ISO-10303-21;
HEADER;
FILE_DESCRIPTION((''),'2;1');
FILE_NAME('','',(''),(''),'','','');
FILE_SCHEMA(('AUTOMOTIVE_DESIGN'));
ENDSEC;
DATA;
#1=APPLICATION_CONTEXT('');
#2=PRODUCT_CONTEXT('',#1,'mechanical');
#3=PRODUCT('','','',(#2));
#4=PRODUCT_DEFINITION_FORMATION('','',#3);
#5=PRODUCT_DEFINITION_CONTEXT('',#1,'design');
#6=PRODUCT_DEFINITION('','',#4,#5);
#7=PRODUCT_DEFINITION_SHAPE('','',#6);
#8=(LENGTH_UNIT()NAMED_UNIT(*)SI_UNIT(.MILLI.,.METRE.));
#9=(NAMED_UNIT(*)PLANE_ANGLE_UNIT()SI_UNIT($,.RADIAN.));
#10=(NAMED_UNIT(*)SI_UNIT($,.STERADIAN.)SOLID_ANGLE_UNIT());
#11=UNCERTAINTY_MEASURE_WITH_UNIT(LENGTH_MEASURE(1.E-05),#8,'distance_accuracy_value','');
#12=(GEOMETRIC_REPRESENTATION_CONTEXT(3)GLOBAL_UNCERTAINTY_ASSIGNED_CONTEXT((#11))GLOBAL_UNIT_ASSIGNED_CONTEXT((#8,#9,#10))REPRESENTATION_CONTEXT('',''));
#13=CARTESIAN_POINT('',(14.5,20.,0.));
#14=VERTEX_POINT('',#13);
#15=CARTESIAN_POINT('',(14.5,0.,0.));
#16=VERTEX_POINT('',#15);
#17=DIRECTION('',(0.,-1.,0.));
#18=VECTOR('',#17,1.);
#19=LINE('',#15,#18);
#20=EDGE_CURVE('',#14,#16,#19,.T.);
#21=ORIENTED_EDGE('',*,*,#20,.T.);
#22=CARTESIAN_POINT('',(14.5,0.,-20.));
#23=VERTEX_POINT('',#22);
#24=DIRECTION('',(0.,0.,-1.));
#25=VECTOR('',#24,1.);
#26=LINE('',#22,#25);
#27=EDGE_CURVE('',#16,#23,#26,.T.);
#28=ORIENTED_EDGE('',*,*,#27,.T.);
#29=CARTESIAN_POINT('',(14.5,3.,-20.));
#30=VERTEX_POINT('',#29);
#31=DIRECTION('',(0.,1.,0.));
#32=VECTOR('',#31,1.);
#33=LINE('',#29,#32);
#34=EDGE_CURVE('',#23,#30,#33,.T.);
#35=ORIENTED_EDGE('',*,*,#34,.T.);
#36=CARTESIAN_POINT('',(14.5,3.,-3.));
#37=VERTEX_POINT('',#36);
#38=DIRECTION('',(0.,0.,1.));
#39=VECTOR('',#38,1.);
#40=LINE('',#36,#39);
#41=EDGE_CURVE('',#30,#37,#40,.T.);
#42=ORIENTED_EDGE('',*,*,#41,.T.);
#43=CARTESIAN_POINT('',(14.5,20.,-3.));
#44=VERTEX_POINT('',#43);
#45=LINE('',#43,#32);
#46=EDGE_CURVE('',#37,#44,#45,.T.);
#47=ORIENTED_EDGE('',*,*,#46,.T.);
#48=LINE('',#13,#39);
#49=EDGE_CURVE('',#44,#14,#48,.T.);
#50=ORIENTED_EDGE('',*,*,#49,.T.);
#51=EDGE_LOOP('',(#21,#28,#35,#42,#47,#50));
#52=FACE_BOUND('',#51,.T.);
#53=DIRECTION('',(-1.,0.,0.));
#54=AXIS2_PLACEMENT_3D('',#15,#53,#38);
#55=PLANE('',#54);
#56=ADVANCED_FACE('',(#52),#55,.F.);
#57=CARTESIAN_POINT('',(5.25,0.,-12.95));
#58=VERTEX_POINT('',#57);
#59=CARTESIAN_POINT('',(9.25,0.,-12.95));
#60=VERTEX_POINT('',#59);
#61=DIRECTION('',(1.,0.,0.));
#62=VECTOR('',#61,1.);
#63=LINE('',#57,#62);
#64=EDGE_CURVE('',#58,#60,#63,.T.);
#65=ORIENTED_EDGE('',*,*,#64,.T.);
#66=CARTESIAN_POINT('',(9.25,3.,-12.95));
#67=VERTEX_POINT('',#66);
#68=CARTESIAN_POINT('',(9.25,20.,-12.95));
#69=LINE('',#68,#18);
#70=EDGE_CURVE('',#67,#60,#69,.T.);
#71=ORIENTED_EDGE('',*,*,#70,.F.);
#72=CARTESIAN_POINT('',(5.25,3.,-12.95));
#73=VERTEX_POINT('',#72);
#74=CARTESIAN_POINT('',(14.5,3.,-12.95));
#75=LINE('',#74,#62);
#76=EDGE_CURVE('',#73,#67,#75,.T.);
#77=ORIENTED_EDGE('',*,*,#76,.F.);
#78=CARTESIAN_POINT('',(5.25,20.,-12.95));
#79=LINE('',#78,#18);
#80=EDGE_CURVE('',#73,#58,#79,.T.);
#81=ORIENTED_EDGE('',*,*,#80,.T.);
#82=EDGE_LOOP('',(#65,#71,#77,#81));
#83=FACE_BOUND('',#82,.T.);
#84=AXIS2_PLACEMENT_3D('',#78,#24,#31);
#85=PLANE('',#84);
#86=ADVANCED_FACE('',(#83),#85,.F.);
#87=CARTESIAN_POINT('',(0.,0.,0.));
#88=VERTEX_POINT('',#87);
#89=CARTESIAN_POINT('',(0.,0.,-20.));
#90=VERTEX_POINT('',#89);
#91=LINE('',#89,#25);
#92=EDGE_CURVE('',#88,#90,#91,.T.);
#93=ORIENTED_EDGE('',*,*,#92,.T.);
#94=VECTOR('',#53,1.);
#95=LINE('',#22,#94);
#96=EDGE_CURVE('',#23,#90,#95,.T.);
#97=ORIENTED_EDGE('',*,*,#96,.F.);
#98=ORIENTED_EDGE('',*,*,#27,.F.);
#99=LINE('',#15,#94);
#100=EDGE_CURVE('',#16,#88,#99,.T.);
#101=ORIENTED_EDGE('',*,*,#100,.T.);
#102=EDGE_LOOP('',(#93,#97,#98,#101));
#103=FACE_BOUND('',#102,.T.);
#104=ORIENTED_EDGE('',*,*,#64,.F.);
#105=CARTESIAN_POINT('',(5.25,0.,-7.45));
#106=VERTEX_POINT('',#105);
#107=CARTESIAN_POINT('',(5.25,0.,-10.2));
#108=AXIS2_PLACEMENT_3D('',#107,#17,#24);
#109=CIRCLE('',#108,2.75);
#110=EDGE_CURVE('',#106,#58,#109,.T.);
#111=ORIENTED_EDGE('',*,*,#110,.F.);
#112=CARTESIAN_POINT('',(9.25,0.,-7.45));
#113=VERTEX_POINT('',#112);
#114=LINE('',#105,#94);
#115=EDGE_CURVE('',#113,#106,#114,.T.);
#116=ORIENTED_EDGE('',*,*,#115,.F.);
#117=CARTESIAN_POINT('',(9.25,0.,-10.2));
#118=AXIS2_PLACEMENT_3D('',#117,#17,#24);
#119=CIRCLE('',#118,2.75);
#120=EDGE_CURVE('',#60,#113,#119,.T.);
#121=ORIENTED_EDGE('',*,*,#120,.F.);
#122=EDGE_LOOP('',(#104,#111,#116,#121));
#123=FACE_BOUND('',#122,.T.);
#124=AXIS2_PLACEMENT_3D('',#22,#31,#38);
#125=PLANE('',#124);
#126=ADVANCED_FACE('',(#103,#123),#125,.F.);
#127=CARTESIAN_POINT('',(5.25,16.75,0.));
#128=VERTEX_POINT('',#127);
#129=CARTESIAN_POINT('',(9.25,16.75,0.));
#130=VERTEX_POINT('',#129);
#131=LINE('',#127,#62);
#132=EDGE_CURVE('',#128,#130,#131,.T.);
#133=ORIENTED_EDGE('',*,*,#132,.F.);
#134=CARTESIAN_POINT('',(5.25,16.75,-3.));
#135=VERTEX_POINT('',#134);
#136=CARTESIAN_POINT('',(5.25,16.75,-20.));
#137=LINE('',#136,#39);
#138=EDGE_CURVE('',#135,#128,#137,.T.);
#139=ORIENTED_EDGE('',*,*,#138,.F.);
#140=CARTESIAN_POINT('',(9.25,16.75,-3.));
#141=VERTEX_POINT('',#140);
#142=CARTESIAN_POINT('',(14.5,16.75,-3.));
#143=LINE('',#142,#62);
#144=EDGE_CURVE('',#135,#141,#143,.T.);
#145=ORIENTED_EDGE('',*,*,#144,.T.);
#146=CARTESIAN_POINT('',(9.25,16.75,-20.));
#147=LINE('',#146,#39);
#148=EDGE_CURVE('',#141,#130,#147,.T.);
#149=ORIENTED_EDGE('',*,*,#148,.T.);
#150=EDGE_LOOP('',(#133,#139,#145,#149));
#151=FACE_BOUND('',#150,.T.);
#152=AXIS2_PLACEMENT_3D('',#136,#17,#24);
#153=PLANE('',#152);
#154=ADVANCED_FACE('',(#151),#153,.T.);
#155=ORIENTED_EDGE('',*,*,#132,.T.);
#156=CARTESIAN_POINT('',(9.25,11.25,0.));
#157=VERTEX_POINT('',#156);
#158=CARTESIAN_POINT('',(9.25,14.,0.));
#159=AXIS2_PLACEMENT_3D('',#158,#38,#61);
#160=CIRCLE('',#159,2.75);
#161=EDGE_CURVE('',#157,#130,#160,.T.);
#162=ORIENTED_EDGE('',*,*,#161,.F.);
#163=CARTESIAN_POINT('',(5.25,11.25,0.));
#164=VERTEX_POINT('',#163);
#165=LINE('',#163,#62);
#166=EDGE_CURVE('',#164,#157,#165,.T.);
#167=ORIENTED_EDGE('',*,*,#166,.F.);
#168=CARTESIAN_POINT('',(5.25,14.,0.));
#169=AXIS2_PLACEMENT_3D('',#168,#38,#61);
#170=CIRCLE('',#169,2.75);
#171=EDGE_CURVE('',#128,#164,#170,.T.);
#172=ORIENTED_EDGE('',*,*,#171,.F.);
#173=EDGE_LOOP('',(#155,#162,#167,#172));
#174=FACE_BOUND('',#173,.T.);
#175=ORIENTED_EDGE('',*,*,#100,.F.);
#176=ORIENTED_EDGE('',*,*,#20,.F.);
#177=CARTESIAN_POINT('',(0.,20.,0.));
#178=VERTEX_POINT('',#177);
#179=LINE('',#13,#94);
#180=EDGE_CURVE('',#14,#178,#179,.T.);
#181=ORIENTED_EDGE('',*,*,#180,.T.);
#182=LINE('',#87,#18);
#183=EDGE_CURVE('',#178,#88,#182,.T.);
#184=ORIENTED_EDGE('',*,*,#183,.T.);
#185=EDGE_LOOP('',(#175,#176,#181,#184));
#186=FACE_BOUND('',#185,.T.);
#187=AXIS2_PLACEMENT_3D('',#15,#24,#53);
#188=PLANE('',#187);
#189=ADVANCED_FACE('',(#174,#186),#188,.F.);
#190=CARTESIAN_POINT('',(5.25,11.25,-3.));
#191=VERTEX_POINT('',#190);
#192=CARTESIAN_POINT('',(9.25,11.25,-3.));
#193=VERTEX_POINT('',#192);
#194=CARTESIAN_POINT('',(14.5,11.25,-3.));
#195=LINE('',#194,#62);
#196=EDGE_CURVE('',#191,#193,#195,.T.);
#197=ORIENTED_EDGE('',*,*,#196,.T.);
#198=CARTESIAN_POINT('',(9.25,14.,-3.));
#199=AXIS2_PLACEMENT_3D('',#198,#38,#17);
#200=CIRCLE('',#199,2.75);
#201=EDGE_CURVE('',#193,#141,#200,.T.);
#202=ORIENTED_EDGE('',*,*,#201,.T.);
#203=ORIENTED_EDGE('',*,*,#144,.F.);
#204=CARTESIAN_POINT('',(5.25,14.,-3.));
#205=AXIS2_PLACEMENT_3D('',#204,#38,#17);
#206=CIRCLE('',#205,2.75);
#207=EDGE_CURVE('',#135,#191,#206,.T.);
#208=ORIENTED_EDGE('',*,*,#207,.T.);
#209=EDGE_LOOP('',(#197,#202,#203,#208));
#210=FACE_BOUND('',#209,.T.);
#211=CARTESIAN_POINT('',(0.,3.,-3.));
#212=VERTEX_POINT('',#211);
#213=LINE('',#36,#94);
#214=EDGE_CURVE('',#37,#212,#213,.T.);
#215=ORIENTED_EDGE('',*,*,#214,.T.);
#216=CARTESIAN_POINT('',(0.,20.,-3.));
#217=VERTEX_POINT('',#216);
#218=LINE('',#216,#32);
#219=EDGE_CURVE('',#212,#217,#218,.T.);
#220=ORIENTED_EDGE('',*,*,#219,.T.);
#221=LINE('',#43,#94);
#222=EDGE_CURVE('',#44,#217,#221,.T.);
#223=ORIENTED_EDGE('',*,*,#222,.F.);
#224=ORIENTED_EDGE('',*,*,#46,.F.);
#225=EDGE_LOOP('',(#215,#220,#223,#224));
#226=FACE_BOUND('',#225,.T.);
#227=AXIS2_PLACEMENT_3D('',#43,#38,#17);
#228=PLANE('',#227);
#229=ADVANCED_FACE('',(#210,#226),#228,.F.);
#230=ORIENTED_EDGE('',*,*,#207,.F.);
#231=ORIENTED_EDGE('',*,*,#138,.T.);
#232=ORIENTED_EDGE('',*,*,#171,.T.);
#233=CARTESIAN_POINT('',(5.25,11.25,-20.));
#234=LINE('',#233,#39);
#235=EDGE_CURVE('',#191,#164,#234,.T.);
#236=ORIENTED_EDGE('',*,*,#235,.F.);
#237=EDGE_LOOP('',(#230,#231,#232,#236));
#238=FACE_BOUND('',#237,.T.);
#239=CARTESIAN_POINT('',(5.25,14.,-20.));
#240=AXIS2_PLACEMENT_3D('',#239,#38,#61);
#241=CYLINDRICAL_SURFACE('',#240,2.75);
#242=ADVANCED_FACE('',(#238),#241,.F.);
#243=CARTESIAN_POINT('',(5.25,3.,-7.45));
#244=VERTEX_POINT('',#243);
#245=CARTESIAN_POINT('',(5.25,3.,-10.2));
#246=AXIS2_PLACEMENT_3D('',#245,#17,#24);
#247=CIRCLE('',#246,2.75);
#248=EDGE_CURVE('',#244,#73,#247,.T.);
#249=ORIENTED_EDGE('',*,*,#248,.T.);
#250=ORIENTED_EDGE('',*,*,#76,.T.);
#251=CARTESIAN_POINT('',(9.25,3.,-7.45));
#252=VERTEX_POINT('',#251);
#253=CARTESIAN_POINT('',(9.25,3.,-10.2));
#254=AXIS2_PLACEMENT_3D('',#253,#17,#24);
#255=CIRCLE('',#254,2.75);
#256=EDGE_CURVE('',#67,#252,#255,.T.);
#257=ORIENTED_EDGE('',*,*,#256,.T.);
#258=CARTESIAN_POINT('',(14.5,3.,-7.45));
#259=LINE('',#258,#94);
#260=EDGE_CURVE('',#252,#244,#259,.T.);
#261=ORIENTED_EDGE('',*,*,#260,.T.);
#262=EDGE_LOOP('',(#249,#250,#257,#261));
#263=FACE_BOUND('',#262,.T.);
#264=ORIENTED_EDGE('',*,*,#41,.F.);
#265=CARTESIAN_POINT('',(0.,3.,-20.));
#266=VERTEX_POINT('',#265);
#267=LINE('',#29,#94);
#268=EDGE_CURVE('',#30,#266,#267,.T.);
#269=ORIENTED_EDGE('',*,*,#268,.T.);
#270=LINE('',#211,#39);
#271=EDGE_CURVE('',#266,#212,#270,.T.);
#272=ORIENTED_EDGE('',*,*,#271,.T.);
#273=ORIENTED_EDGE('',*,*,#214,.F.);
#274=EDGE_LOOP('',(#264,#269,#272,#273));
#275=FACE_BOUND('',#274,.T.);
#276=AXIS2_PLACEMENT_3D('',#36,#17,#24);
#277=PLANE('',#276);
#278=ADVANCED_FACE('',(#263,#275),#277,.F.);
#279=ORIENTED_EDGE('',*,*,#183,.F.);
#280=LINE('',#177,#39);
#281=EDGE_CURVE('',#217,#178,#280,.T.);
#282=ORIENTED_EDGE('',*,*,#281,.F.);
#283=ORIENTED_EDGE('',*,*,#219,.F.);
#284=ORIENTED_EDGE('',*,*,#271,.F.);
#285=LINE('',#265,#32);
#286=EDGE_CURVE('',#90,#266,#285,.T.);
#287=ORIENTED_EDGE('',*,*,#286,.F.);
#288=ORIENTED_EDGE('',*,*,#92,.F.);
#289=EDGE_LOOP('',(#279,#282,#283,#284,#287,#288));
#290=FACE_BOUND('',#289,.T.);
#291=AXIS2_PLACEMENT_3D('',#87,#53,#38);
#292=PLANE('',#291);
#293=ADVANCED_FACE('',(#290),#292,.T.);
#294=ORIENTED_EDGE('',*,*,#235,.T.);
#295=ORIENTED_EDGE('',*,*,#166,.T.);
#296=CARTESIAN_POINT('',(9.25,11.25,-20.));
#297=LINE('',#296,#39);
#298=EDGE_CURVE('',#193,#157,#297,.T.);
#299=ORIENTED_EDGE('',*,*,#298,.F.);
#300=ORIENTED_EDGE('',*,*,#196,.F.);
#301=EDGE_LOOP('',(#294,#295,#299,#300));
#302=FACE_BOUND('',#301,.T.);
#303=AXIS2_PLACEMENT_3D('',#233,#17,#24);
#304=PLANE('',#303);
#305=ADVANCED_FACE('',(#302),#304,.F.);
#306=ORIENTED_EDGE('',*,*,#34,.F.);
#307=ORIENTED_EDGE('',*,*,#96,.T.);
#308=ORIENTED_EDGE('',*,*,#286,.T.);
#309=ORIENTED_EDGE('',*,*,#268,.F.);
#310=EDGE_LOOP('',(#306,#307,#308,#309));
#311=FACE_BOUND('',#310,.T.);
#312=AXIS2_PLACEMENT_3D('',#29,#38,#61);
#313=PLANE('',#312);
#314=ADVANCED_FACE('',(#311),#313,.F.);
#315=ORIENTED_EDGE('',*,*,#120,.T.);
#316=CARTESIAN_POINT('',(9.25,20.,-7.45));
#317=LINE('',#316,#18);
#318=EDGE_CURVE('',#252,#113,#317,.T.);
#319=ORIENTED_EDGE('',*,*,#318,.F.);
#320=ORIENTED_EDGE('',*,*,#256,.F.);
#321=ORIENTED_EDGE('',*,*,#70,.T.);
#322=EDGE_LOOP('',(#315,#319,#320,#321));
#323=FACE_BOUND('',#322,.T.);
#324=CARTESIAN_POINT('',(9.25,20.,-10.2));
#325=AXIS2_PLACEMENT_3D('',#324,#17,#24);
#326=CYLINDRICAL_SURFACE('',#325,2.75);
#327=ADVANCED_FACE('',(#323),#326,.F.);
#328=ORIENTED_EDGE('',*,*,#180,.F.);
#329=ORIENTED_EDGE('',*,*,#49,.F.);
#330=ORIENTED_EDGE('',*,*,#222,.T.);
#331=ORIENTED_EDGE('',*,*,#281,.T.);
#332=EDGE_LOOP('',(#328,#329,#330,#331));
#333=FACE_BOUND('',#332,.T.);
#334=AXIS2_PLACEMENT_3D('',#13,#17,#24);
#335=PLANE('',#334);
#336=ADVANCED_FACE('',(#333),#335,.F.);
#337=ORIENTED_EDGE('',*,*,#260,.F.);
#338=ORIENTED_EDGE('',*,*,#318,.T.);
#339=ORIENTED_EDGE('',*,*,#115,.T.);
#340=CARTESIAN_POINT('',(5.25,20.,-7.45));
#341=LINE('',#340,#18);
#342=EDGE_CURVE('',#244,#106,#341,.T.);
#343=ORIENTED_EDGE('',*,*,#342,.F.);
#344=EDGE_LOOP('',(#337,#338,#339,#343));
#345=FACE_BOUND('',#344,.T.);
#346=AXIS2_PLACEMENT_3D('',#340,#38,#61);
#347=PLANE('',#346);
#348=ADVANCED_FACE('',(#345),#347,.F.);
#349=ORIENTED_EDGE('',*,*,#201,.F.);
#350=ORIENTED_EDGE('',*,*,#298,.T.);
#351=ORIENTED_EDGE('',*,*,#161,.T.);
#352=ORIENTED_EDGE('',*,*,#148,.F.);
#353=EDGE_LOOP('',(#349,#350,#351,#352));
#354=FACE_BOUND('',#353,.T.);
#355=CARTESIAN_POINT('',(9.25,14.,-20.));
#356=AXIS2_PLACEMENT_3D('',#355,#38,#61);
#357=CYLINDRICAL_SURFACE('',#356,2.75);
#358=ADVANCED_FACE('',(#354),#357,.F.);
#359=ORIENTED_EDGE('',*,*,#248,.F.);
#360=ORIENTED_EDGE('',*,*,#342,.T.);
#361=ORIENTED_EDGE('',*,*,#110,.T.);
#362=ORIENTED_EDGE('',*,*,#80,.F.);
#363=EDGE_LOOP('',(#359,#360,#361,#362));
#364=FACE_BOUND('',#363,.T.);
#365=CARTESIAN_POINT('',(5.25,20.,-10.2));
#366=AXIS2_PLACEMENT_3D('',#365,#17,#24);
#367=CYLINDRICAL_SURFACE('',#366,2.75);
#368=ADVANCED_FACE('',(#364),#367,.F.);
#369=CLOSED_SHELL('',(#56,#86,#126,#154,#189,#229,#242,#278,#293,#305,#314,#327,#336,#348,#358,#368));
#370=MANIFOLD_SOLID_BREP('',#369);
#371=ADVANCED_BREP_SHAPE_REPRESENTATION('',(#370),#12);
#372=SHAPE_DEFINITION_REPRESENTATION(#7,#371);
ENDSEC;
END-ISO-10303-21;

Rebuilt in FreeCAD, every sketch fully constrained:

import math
import FreeCAD as App
import Part
import Sketcher

V = App.Vector
Q = App.Units.Quantity


def add_polygon(sketch, points):
    """Adds a closed chain of lines whose ends are joined by coincident constraints."""
    first, n = sketch.GeometryCount, len(points)
    for a, b in zip(points, points[1:] + points[:1]):
        sketch.addGeometry(Part.LineSegment(App.Vector(*a, 0), App.Vector(*b, 0)), False)
    for i in range(n):
        sketch.addConstraint(Sketcher.Constraint("Coincident", first + i, 2, first + (i + 1) % n, 1))

doc = App.newDocument("Part")
body = doc.addObject("PartDesign::Body", "Body")

sketch1 = body.newObject("Sketcher::SketchObject", "Sketch")
sketch1.AttachmentSupport = (doc.getObject("YZ_Plane"), [""])
sketch1.MapMode = "FlatFace"
add_polygon(sketch1, [(20, 0), (0, 0), (0, -20), (3, -20), (3, -3), (20, -3)])
sketch1.addConstraint(Sketcher.Constraint("Horizontal", 0))
sketch1.addConstraint(Sketcher.Constraint("Vertical", 1))
sketch1.addConstraint(Sketcher.Constraint("Horizontal", 2))
sketch1.addConstraint(Sketcher.Constraint("Vertical", 3))
sketch1.addConstraint(Sketcher.Constraint("Horizontal", 4))
sketch1.addConstraint(Sketcher.Constraint("Vertical", 5))
sketch1.addConstraint(Sketcher.Constraint("Coincident", 0, 2, -1, 1))
sketch1.addConstraint(Sketcher.Constraint("Equal", 0, 1))
sketch1.addConstraint(Sketcher.Constraint("Equal", 4, 3))
sketch1.addConstraint(Sketcher.Constraint("DistanceX", 0, 2, 0, 1, Q("20 mm")))
sketch1.addConstraint(Sketcher.Constraint("DistanceX", 2, 1, 2, 2, Q("3 mm")))
pad1 = body.newObject("PartDesign::Pad", "Pad")
pad1.Profile = sketch1
pad1.Length = 14.5

sketch2 = body.newObject("Sketcher::SketchObject", "Sketch001")
sketch2.AttachmentSupport = (doc.getObject("XY_Plane"), [""])
sketch2.MapMode = "FlatFace"
sketch2.addGeometry(Part.LineSegment(V(9.2, 16.8, 0), V(5.2, 16.8, 0)), False)
sketch2.addGeometry(Part.ArcOfCircle(Part.Circle(V(5.2, 14, 0), V(0, 0, 1), 2.8), math.radians(90), math.radians(270)), False)
sketch2.addGeometry(Part.LineSegment(V(5.2, 11.2, 0), V(9.2, 11.2, 0)), False)
sketch2.addGeometry(Part.ArcOfCircle(Part.Circle(V(9.2, 14, 0), V(0, 0, 1), 2.8), math.radians(-90), math.radians(90)), False)
sketch2.addConstraint(Sketcher.Constraint("Tangent", 0, 2, 1, 1))
sketch2.addConstraint(Sketcher.Constraint("Tangent", 1, 2, 2, 1))
sketch2.addConstraint(Sketcher.Constraint("Tangent", 2, 2, 3, 1))
sketch2.addConstraint(Sketcher.Constraint("Tangent", 3, 2, 0, 1))
sketch2.addConstraint(Sketcher.Constraint("Horizontal", 0))
sketch2.addConstraint(Sketcher.Constraint("Horizontal", 2))
sketch2.addConstraint(Sketcher.Constraint("DistanceX", 0, 2, 0, 1, Q("4 mm")))
sketch2.addConstraint(Sketcher.Constraint("Radius", 1, Q("2.75 mm")))
sketch2.addConstraint(Sketcher.Constraint("DistanceY", -1, 1, 1, 3, Q("14 mm")))
sketch2.addConstraint(Sketcher.Constraint("DistanceX", -1, 1, 1, 3, Q("5.25 mm")))
pocket1 = body.newObject("PartDesign::Pocket", "Pocket")
pocket1.Profile = sketch2
pocket1.Type = "ThroughAll"

sketch3 = body.newObject("Sketcher::SketchObject", "Sketch002")
sketch3.AttachmentSupport = (doc.getObject("XZ_Plane"), [""])
sketch3.MapMode = "FlatFace"
sketch3.addGeometry(Part.LineSegment(V(9.2, -7.5, 0), V(5.2, -7.5, 0)), False)
sketch3.addGeometry(Part.ArcOfCircle(Part.Circle(V(5.2, -10.2, 0), V(0, 0, 1), 2.8), math.radians(90), math.radians(270)), False)
sketch3.addGeometry(Part.LineSegment(V(5.2, -12.9, 0), V(9.2, -12.9, 0)), False)
sketch3.addGeometry(Part.ArcOfCircle(Part.Circle(V(9.2, -10.2, 0), V(0, 0, 1), 2.8), math.radians(-90), math.radians(90)), False)
sketch3.addConstraint(Sketcher.Constraint("Tangent", 0, 2, 1, 1))
sketch3.addConstraint(Sketcher.Constraint("Tangent", 1, 2, 2, 1))
sketch3.addConstraint(Sketcher.Constraint("Tangent", 2, 2, 3, 1))
sketch3.addConstraint(Sketcher.Constraint("Tangent", 3, 2, 0, 1))
sketch3.addConstraint(Sketcher.Constraint("Horizontal", 0))
sketch3.addConstraint(Sketcher.Constraint("Horizontal", 2))
sketch3.addConstraint(Sketcher.Constraint("DistanceX", 0, 2, 0, 1, Q("4 mm")))
sketch3.addConstraint(Sketcher.Constraint("Radius", 1, Q("2.75 mm")))
sketch3.addConstraint(Sketcher.Constraint("DistanceY", 1, 3, -1, 1, Q("10.2 mm")))
sketch3.addConstraint(Sketcher.Constraint("DistanceX", -1, 1, 1, 3, Q("5.25 mm")))
pocket2 = body.newObject("PartDesign::Pocket", "Pocket001")
pocket2.Profile = sketch3
pocket2.Type = "ThroughAll"

doc.recompute()
